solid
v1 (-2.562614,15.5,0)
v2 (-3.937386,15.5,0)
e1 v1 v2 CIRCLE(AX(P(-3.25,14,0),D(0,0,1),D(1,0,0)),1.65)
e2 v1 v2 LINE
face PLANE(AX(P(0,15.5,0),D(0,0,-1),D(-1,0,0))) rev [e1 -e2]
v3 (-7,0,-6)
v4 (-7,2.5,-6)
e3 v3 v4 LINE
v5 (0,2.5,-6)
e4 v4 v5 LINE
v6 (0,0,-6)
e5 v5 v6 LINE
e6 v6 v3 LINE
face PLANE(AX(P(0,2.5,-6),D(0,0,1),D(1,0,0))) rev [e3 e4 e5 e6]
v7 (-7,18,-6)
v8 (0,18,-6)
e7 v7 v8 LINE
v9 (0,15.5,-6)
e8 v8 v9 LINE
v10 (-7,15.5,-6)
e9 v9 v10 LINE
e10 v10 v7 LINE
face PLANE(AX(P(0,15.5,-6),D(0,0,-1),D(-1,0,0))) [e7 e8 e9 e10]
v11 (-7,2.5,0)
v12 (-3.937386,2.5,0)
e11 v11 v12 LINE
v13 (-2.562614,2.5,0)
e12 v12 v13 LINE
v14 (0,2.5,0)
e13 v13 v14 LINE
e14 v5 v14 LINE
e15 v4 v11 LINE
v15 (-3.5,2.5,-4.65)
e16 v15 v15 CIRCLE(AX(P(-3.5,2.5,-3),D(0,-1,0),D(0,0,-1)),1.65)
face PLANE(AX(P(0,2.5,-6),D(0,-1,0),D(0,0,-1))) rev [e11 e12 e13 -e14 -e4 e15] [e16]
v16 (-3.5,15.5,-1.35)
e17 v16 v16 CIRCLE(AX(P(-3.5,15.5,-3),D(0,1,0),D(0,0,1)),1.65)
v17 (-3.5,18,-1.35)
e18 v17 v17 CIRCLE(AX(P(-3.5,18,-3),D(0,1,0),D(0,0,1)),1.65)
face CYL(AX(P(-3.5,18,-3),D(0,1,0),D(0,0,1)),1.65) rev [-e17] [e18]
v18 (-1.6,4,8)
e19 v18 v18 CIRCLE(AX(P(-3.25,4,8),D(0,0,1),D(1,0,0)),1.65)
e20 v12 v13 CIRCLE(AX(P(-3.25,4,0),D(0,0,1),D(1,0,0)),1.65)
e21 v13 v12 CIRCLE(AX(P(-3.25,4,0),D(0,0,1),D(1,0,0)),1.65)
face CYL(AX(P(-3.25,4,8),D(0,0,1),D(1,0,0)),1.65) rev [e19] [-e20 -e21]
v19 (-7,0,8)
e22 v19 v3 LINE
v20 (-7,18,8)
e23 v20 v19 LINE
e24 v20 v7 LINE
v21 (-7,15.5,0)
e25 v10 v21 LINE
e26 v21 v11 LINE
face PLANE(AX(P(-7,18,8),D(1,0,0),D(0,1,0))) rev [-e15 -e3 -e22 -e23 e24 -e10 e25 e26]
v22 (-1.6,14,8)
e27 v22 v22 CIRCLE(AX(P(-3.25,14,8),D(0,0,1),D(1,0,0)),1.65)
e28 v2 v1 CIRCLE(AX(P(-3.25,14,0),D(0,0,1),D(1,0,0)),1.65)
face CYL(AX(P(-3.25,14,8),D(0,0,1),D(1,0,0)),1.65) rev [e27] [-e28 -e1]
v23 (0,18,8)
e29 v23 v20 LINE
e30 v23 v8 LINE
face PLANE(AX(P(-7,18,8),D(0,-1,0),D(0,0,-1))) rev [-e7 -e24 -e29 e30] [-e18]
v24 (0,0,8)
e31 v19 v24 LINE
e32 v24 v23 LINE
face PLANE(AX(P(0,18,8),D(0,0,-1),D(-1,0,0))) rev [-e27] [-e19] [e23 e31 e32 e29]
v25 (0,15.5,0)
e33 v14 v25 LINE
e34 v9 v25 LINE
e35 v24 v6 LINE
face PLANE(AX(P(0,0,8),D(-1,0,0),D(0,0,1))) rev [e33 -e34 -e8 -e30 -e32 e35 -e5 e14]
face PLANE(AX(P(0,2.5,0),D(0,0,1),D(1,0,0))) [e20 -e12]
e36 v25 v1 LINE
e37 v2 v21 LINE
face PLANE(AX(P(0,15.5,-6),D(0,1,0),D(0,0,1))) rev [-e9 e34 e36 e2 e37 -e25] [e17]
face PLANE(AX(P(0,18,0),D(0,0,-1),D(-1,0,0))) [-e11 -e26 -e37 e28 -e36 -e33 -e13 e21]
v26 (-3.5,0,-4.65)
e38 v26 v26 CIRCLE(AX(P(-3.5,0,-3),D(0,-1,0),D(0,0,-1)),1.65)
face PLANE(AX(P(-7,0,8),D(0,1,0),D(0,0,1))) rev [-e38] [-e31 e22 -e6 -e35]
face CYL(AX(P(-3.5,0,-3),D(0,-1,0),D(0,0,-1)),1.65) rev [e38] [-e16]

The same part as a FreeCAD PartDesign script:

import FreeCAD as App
import Part
import Sketcher

V = App.Vector


def add_polygon(sketch, points):
    """Adds a closed chain of lines whose ends are joined by coincident constraints."""
    first, n = sketch.GeometryCount, len(points)
    for a, b in zip(points, points[1:] + points[:1]):
        sketch.addGeometry(Part.LineSegment(App.Vector(*a, 0), App.Vector(*b, 0)), False)
    for i in range(n):
        sketch.addConstraint(Sketcher.Constraint("Coincident", first + i, 2, first + (i + 1) % n, 1))

doc = App.newDocument("Part")
body = doc.addObject("PartDesign::Body", "Body")

sketch1 = body.newObject("Sketcher::SketchObject", "Sketch")
sketch1.AttachmentSupport = (doc.getObject("XY_Plane"), [""])
sketch1.MapMode = "FlatFace"
add_polygon(sketch1, [(-7, 18), (-7, 0), (0, 0), (0, 18)])
sketch1.addConstraint([
    Sketcher.Constraint("Vertical", 0),
    Sketcher.Constraint("Horizontal", 1),
    Sketcher.Constraint("Vertical", 2),
    Sketcher.Constraint("Horizontal", 3),
    Sketcher.Constraint("Coincident", 1, 2, -1, 1),
    Sketcher.Constraint("DistanceX", 1, 1, 1, 2, 7.0),
    Sketcher.Constraint("DistanceY", 0, 2, 0, 1, 18.0),
])
pad1 = body.newObject("PartDesign::Pad", "Pad")
pad1.Profile = sketch1
pad1.Length = 8

sketch2 = body.newObject("Sketcher::SketchObject", "Sketch001")
sketch2.AttachmentSupport = (doc.getObject("XY_Plane"), [""])
sketch2.MapMode = "FlatFace"
sketch2.AttachmentOffset = App.Placement(V(0, 0, 8), App.Rotation())
sketch2.addGeometry([
    Part.Circle(V(-3.2, 4, 0), V(0, 0, 1), 1.6),
    Part.Circle(V(-3.2, 14, 0), V(0, 0, 1), 1.6),
], False)
sketch2.addConstraint([
    Sketcher.Constraint("Equal", 0, 1),
    Sketcher.Constraint("Vertical", 0, 3, 1, 3),
    Sketcher.Constraint("Diameter", 0, 3.3),
    Sketcher.Constraint("DistanceY", -1, 1, 0, 3, 4.0),
    Sketcher.Constraint("DistanceY", -1, 1, 1, 3, 14.0),
    Sketcher.Constraint("DistanceX", 0, 3, -1, 1, 3.25),
])
doc.recompute()
hole = body.newObject("PartDesign::Hole", "Hole")
hole.Profile = sketch2
hole.ThreadType = "None"
hole.Diameter = 3.3
hole.DepthType = "ThroughAll"

sketch3 = body.newObject("Sketcher::SketchObject", "Sketch002")
sketch3.AttachmentSupport = (doc.getObject("XY_Plane"), [""])
sketch3.MapMode = "FlatFace"
add_polygon(sketch3, [(0, 18), (0, 15.5), (-7, 15.5), (-7, 18)])
add_polygon(sketch3, [(0, 2.5), (0, 0), (-7, 0), (-7, 2.5)])
sketch3.addConstraint([
    Sketcher.Constraint("Vertical", 0),
    Sketcher.Constraint("Horizontal", 1),
    Sketcher.Constraint("Vertical", 2),
    Sketcher.Constraint("Horizontal", 3),
    Sketcher.Constraint("Vertical", 4),
    Sketcher.Constraint("Horizontal", 5),
    Sketcher.Constraint("Vertical", 6),
    Sketcher.Constraint("Horizontal", 7),
    Sketcher.Constraint("Coincident", 4, 2, -1, 1),
    Sketcher.Constraint("PointOnObject", 0, 2, -2),
    Sketcher.Constraint("Vertical", 2, 2, 5, 2),
    Sketcher.Constraint("Equal", 2, 4),
    Sketcher.Constraint("DistanceX", 1, 2, 1, 1, 7.0),
    Sketcher.Constraint("DistanceY", 0, 2, 0, 1, 2.5),
    Sketcher.Constraint("DistanceY", -1, 1, 2, 2, 18.0),
])
pad2 = body.newObject("PartDesign::Pad", "Pad001")
pad2.Profile = sketch3
pad2.Length = 6
pad2.Reversed = True

sketch4 = body.newObject("Sketcher::SketchObject", "Sketch003")
sketch4.AttachmentSupport = (doc.getObject("XZ_Plane"), [""])
sketch4.MapMode = "FlatFace"
sketch4.AttachmentOffset = App.Placement(V(0, 0, -18), App.Rotation())
sketch4.addGeometry(Part.Circle(V(-3.5, -3, 0), V(0, 0, 1), 1.6), False)
sketch4.addConstraint([
    Sketcher.Constraint("Diameter", 0, 3.3),
    Sketcher.Constraint("DistanceY", 0, 3, -1, 1, 3.0),
    Sketcher.Constraint("DistanceX", 0, 3, -1, 1, 3.5),
])
doc.recompute()
hole2 = body.newObject("PartDesign::Hole", "Hole001")
hole2.Profile = sketch4
hole2.ThreadType = "None"
hole2.Diameter = 3.3
hole2.DepthType = "Dimension"
hole2.Depth = 10.3
hole2.DrillPoint = "Angled"
hole2.DrillPointAngle = 118
hole2.Reversed = True

sketch5 = body.newObject("Sketcher::SketchObject", "Sketch004")
sketch5.AttachmentSupport = (doc.getObject("XZ_Plane"), [""])
sketch5.MapMode = "FlatFace"
sketch5.addGeometry(Part.Circle(V(-3.5, -3, 0), V(0, 0, 1), 1.6), False)
sketch5.addConstraint([
    Sketcher.Constraint("Diameter", 0, 3.3),
    Sketcher.Constraint("DistanceY", 0, 3, -1, 1, 3.0),
    Sketcher.Constraint("DistanceX", 0, 3, -1, 1, 3.5),
])
doc.recompute()
hole3 = body.newObject("PartDesign::Hole", "Hole002")
hole3.Profile = sketch5
hole3.ThreadType = "None"
hole3.Diameter = 3.3
hole3.DepthType = "Dimension"
hole3.Depth = 10.3
hole3.DrillPoint = "Angled"
hole3.DrillPointAngle = 118

doc.recompute()
